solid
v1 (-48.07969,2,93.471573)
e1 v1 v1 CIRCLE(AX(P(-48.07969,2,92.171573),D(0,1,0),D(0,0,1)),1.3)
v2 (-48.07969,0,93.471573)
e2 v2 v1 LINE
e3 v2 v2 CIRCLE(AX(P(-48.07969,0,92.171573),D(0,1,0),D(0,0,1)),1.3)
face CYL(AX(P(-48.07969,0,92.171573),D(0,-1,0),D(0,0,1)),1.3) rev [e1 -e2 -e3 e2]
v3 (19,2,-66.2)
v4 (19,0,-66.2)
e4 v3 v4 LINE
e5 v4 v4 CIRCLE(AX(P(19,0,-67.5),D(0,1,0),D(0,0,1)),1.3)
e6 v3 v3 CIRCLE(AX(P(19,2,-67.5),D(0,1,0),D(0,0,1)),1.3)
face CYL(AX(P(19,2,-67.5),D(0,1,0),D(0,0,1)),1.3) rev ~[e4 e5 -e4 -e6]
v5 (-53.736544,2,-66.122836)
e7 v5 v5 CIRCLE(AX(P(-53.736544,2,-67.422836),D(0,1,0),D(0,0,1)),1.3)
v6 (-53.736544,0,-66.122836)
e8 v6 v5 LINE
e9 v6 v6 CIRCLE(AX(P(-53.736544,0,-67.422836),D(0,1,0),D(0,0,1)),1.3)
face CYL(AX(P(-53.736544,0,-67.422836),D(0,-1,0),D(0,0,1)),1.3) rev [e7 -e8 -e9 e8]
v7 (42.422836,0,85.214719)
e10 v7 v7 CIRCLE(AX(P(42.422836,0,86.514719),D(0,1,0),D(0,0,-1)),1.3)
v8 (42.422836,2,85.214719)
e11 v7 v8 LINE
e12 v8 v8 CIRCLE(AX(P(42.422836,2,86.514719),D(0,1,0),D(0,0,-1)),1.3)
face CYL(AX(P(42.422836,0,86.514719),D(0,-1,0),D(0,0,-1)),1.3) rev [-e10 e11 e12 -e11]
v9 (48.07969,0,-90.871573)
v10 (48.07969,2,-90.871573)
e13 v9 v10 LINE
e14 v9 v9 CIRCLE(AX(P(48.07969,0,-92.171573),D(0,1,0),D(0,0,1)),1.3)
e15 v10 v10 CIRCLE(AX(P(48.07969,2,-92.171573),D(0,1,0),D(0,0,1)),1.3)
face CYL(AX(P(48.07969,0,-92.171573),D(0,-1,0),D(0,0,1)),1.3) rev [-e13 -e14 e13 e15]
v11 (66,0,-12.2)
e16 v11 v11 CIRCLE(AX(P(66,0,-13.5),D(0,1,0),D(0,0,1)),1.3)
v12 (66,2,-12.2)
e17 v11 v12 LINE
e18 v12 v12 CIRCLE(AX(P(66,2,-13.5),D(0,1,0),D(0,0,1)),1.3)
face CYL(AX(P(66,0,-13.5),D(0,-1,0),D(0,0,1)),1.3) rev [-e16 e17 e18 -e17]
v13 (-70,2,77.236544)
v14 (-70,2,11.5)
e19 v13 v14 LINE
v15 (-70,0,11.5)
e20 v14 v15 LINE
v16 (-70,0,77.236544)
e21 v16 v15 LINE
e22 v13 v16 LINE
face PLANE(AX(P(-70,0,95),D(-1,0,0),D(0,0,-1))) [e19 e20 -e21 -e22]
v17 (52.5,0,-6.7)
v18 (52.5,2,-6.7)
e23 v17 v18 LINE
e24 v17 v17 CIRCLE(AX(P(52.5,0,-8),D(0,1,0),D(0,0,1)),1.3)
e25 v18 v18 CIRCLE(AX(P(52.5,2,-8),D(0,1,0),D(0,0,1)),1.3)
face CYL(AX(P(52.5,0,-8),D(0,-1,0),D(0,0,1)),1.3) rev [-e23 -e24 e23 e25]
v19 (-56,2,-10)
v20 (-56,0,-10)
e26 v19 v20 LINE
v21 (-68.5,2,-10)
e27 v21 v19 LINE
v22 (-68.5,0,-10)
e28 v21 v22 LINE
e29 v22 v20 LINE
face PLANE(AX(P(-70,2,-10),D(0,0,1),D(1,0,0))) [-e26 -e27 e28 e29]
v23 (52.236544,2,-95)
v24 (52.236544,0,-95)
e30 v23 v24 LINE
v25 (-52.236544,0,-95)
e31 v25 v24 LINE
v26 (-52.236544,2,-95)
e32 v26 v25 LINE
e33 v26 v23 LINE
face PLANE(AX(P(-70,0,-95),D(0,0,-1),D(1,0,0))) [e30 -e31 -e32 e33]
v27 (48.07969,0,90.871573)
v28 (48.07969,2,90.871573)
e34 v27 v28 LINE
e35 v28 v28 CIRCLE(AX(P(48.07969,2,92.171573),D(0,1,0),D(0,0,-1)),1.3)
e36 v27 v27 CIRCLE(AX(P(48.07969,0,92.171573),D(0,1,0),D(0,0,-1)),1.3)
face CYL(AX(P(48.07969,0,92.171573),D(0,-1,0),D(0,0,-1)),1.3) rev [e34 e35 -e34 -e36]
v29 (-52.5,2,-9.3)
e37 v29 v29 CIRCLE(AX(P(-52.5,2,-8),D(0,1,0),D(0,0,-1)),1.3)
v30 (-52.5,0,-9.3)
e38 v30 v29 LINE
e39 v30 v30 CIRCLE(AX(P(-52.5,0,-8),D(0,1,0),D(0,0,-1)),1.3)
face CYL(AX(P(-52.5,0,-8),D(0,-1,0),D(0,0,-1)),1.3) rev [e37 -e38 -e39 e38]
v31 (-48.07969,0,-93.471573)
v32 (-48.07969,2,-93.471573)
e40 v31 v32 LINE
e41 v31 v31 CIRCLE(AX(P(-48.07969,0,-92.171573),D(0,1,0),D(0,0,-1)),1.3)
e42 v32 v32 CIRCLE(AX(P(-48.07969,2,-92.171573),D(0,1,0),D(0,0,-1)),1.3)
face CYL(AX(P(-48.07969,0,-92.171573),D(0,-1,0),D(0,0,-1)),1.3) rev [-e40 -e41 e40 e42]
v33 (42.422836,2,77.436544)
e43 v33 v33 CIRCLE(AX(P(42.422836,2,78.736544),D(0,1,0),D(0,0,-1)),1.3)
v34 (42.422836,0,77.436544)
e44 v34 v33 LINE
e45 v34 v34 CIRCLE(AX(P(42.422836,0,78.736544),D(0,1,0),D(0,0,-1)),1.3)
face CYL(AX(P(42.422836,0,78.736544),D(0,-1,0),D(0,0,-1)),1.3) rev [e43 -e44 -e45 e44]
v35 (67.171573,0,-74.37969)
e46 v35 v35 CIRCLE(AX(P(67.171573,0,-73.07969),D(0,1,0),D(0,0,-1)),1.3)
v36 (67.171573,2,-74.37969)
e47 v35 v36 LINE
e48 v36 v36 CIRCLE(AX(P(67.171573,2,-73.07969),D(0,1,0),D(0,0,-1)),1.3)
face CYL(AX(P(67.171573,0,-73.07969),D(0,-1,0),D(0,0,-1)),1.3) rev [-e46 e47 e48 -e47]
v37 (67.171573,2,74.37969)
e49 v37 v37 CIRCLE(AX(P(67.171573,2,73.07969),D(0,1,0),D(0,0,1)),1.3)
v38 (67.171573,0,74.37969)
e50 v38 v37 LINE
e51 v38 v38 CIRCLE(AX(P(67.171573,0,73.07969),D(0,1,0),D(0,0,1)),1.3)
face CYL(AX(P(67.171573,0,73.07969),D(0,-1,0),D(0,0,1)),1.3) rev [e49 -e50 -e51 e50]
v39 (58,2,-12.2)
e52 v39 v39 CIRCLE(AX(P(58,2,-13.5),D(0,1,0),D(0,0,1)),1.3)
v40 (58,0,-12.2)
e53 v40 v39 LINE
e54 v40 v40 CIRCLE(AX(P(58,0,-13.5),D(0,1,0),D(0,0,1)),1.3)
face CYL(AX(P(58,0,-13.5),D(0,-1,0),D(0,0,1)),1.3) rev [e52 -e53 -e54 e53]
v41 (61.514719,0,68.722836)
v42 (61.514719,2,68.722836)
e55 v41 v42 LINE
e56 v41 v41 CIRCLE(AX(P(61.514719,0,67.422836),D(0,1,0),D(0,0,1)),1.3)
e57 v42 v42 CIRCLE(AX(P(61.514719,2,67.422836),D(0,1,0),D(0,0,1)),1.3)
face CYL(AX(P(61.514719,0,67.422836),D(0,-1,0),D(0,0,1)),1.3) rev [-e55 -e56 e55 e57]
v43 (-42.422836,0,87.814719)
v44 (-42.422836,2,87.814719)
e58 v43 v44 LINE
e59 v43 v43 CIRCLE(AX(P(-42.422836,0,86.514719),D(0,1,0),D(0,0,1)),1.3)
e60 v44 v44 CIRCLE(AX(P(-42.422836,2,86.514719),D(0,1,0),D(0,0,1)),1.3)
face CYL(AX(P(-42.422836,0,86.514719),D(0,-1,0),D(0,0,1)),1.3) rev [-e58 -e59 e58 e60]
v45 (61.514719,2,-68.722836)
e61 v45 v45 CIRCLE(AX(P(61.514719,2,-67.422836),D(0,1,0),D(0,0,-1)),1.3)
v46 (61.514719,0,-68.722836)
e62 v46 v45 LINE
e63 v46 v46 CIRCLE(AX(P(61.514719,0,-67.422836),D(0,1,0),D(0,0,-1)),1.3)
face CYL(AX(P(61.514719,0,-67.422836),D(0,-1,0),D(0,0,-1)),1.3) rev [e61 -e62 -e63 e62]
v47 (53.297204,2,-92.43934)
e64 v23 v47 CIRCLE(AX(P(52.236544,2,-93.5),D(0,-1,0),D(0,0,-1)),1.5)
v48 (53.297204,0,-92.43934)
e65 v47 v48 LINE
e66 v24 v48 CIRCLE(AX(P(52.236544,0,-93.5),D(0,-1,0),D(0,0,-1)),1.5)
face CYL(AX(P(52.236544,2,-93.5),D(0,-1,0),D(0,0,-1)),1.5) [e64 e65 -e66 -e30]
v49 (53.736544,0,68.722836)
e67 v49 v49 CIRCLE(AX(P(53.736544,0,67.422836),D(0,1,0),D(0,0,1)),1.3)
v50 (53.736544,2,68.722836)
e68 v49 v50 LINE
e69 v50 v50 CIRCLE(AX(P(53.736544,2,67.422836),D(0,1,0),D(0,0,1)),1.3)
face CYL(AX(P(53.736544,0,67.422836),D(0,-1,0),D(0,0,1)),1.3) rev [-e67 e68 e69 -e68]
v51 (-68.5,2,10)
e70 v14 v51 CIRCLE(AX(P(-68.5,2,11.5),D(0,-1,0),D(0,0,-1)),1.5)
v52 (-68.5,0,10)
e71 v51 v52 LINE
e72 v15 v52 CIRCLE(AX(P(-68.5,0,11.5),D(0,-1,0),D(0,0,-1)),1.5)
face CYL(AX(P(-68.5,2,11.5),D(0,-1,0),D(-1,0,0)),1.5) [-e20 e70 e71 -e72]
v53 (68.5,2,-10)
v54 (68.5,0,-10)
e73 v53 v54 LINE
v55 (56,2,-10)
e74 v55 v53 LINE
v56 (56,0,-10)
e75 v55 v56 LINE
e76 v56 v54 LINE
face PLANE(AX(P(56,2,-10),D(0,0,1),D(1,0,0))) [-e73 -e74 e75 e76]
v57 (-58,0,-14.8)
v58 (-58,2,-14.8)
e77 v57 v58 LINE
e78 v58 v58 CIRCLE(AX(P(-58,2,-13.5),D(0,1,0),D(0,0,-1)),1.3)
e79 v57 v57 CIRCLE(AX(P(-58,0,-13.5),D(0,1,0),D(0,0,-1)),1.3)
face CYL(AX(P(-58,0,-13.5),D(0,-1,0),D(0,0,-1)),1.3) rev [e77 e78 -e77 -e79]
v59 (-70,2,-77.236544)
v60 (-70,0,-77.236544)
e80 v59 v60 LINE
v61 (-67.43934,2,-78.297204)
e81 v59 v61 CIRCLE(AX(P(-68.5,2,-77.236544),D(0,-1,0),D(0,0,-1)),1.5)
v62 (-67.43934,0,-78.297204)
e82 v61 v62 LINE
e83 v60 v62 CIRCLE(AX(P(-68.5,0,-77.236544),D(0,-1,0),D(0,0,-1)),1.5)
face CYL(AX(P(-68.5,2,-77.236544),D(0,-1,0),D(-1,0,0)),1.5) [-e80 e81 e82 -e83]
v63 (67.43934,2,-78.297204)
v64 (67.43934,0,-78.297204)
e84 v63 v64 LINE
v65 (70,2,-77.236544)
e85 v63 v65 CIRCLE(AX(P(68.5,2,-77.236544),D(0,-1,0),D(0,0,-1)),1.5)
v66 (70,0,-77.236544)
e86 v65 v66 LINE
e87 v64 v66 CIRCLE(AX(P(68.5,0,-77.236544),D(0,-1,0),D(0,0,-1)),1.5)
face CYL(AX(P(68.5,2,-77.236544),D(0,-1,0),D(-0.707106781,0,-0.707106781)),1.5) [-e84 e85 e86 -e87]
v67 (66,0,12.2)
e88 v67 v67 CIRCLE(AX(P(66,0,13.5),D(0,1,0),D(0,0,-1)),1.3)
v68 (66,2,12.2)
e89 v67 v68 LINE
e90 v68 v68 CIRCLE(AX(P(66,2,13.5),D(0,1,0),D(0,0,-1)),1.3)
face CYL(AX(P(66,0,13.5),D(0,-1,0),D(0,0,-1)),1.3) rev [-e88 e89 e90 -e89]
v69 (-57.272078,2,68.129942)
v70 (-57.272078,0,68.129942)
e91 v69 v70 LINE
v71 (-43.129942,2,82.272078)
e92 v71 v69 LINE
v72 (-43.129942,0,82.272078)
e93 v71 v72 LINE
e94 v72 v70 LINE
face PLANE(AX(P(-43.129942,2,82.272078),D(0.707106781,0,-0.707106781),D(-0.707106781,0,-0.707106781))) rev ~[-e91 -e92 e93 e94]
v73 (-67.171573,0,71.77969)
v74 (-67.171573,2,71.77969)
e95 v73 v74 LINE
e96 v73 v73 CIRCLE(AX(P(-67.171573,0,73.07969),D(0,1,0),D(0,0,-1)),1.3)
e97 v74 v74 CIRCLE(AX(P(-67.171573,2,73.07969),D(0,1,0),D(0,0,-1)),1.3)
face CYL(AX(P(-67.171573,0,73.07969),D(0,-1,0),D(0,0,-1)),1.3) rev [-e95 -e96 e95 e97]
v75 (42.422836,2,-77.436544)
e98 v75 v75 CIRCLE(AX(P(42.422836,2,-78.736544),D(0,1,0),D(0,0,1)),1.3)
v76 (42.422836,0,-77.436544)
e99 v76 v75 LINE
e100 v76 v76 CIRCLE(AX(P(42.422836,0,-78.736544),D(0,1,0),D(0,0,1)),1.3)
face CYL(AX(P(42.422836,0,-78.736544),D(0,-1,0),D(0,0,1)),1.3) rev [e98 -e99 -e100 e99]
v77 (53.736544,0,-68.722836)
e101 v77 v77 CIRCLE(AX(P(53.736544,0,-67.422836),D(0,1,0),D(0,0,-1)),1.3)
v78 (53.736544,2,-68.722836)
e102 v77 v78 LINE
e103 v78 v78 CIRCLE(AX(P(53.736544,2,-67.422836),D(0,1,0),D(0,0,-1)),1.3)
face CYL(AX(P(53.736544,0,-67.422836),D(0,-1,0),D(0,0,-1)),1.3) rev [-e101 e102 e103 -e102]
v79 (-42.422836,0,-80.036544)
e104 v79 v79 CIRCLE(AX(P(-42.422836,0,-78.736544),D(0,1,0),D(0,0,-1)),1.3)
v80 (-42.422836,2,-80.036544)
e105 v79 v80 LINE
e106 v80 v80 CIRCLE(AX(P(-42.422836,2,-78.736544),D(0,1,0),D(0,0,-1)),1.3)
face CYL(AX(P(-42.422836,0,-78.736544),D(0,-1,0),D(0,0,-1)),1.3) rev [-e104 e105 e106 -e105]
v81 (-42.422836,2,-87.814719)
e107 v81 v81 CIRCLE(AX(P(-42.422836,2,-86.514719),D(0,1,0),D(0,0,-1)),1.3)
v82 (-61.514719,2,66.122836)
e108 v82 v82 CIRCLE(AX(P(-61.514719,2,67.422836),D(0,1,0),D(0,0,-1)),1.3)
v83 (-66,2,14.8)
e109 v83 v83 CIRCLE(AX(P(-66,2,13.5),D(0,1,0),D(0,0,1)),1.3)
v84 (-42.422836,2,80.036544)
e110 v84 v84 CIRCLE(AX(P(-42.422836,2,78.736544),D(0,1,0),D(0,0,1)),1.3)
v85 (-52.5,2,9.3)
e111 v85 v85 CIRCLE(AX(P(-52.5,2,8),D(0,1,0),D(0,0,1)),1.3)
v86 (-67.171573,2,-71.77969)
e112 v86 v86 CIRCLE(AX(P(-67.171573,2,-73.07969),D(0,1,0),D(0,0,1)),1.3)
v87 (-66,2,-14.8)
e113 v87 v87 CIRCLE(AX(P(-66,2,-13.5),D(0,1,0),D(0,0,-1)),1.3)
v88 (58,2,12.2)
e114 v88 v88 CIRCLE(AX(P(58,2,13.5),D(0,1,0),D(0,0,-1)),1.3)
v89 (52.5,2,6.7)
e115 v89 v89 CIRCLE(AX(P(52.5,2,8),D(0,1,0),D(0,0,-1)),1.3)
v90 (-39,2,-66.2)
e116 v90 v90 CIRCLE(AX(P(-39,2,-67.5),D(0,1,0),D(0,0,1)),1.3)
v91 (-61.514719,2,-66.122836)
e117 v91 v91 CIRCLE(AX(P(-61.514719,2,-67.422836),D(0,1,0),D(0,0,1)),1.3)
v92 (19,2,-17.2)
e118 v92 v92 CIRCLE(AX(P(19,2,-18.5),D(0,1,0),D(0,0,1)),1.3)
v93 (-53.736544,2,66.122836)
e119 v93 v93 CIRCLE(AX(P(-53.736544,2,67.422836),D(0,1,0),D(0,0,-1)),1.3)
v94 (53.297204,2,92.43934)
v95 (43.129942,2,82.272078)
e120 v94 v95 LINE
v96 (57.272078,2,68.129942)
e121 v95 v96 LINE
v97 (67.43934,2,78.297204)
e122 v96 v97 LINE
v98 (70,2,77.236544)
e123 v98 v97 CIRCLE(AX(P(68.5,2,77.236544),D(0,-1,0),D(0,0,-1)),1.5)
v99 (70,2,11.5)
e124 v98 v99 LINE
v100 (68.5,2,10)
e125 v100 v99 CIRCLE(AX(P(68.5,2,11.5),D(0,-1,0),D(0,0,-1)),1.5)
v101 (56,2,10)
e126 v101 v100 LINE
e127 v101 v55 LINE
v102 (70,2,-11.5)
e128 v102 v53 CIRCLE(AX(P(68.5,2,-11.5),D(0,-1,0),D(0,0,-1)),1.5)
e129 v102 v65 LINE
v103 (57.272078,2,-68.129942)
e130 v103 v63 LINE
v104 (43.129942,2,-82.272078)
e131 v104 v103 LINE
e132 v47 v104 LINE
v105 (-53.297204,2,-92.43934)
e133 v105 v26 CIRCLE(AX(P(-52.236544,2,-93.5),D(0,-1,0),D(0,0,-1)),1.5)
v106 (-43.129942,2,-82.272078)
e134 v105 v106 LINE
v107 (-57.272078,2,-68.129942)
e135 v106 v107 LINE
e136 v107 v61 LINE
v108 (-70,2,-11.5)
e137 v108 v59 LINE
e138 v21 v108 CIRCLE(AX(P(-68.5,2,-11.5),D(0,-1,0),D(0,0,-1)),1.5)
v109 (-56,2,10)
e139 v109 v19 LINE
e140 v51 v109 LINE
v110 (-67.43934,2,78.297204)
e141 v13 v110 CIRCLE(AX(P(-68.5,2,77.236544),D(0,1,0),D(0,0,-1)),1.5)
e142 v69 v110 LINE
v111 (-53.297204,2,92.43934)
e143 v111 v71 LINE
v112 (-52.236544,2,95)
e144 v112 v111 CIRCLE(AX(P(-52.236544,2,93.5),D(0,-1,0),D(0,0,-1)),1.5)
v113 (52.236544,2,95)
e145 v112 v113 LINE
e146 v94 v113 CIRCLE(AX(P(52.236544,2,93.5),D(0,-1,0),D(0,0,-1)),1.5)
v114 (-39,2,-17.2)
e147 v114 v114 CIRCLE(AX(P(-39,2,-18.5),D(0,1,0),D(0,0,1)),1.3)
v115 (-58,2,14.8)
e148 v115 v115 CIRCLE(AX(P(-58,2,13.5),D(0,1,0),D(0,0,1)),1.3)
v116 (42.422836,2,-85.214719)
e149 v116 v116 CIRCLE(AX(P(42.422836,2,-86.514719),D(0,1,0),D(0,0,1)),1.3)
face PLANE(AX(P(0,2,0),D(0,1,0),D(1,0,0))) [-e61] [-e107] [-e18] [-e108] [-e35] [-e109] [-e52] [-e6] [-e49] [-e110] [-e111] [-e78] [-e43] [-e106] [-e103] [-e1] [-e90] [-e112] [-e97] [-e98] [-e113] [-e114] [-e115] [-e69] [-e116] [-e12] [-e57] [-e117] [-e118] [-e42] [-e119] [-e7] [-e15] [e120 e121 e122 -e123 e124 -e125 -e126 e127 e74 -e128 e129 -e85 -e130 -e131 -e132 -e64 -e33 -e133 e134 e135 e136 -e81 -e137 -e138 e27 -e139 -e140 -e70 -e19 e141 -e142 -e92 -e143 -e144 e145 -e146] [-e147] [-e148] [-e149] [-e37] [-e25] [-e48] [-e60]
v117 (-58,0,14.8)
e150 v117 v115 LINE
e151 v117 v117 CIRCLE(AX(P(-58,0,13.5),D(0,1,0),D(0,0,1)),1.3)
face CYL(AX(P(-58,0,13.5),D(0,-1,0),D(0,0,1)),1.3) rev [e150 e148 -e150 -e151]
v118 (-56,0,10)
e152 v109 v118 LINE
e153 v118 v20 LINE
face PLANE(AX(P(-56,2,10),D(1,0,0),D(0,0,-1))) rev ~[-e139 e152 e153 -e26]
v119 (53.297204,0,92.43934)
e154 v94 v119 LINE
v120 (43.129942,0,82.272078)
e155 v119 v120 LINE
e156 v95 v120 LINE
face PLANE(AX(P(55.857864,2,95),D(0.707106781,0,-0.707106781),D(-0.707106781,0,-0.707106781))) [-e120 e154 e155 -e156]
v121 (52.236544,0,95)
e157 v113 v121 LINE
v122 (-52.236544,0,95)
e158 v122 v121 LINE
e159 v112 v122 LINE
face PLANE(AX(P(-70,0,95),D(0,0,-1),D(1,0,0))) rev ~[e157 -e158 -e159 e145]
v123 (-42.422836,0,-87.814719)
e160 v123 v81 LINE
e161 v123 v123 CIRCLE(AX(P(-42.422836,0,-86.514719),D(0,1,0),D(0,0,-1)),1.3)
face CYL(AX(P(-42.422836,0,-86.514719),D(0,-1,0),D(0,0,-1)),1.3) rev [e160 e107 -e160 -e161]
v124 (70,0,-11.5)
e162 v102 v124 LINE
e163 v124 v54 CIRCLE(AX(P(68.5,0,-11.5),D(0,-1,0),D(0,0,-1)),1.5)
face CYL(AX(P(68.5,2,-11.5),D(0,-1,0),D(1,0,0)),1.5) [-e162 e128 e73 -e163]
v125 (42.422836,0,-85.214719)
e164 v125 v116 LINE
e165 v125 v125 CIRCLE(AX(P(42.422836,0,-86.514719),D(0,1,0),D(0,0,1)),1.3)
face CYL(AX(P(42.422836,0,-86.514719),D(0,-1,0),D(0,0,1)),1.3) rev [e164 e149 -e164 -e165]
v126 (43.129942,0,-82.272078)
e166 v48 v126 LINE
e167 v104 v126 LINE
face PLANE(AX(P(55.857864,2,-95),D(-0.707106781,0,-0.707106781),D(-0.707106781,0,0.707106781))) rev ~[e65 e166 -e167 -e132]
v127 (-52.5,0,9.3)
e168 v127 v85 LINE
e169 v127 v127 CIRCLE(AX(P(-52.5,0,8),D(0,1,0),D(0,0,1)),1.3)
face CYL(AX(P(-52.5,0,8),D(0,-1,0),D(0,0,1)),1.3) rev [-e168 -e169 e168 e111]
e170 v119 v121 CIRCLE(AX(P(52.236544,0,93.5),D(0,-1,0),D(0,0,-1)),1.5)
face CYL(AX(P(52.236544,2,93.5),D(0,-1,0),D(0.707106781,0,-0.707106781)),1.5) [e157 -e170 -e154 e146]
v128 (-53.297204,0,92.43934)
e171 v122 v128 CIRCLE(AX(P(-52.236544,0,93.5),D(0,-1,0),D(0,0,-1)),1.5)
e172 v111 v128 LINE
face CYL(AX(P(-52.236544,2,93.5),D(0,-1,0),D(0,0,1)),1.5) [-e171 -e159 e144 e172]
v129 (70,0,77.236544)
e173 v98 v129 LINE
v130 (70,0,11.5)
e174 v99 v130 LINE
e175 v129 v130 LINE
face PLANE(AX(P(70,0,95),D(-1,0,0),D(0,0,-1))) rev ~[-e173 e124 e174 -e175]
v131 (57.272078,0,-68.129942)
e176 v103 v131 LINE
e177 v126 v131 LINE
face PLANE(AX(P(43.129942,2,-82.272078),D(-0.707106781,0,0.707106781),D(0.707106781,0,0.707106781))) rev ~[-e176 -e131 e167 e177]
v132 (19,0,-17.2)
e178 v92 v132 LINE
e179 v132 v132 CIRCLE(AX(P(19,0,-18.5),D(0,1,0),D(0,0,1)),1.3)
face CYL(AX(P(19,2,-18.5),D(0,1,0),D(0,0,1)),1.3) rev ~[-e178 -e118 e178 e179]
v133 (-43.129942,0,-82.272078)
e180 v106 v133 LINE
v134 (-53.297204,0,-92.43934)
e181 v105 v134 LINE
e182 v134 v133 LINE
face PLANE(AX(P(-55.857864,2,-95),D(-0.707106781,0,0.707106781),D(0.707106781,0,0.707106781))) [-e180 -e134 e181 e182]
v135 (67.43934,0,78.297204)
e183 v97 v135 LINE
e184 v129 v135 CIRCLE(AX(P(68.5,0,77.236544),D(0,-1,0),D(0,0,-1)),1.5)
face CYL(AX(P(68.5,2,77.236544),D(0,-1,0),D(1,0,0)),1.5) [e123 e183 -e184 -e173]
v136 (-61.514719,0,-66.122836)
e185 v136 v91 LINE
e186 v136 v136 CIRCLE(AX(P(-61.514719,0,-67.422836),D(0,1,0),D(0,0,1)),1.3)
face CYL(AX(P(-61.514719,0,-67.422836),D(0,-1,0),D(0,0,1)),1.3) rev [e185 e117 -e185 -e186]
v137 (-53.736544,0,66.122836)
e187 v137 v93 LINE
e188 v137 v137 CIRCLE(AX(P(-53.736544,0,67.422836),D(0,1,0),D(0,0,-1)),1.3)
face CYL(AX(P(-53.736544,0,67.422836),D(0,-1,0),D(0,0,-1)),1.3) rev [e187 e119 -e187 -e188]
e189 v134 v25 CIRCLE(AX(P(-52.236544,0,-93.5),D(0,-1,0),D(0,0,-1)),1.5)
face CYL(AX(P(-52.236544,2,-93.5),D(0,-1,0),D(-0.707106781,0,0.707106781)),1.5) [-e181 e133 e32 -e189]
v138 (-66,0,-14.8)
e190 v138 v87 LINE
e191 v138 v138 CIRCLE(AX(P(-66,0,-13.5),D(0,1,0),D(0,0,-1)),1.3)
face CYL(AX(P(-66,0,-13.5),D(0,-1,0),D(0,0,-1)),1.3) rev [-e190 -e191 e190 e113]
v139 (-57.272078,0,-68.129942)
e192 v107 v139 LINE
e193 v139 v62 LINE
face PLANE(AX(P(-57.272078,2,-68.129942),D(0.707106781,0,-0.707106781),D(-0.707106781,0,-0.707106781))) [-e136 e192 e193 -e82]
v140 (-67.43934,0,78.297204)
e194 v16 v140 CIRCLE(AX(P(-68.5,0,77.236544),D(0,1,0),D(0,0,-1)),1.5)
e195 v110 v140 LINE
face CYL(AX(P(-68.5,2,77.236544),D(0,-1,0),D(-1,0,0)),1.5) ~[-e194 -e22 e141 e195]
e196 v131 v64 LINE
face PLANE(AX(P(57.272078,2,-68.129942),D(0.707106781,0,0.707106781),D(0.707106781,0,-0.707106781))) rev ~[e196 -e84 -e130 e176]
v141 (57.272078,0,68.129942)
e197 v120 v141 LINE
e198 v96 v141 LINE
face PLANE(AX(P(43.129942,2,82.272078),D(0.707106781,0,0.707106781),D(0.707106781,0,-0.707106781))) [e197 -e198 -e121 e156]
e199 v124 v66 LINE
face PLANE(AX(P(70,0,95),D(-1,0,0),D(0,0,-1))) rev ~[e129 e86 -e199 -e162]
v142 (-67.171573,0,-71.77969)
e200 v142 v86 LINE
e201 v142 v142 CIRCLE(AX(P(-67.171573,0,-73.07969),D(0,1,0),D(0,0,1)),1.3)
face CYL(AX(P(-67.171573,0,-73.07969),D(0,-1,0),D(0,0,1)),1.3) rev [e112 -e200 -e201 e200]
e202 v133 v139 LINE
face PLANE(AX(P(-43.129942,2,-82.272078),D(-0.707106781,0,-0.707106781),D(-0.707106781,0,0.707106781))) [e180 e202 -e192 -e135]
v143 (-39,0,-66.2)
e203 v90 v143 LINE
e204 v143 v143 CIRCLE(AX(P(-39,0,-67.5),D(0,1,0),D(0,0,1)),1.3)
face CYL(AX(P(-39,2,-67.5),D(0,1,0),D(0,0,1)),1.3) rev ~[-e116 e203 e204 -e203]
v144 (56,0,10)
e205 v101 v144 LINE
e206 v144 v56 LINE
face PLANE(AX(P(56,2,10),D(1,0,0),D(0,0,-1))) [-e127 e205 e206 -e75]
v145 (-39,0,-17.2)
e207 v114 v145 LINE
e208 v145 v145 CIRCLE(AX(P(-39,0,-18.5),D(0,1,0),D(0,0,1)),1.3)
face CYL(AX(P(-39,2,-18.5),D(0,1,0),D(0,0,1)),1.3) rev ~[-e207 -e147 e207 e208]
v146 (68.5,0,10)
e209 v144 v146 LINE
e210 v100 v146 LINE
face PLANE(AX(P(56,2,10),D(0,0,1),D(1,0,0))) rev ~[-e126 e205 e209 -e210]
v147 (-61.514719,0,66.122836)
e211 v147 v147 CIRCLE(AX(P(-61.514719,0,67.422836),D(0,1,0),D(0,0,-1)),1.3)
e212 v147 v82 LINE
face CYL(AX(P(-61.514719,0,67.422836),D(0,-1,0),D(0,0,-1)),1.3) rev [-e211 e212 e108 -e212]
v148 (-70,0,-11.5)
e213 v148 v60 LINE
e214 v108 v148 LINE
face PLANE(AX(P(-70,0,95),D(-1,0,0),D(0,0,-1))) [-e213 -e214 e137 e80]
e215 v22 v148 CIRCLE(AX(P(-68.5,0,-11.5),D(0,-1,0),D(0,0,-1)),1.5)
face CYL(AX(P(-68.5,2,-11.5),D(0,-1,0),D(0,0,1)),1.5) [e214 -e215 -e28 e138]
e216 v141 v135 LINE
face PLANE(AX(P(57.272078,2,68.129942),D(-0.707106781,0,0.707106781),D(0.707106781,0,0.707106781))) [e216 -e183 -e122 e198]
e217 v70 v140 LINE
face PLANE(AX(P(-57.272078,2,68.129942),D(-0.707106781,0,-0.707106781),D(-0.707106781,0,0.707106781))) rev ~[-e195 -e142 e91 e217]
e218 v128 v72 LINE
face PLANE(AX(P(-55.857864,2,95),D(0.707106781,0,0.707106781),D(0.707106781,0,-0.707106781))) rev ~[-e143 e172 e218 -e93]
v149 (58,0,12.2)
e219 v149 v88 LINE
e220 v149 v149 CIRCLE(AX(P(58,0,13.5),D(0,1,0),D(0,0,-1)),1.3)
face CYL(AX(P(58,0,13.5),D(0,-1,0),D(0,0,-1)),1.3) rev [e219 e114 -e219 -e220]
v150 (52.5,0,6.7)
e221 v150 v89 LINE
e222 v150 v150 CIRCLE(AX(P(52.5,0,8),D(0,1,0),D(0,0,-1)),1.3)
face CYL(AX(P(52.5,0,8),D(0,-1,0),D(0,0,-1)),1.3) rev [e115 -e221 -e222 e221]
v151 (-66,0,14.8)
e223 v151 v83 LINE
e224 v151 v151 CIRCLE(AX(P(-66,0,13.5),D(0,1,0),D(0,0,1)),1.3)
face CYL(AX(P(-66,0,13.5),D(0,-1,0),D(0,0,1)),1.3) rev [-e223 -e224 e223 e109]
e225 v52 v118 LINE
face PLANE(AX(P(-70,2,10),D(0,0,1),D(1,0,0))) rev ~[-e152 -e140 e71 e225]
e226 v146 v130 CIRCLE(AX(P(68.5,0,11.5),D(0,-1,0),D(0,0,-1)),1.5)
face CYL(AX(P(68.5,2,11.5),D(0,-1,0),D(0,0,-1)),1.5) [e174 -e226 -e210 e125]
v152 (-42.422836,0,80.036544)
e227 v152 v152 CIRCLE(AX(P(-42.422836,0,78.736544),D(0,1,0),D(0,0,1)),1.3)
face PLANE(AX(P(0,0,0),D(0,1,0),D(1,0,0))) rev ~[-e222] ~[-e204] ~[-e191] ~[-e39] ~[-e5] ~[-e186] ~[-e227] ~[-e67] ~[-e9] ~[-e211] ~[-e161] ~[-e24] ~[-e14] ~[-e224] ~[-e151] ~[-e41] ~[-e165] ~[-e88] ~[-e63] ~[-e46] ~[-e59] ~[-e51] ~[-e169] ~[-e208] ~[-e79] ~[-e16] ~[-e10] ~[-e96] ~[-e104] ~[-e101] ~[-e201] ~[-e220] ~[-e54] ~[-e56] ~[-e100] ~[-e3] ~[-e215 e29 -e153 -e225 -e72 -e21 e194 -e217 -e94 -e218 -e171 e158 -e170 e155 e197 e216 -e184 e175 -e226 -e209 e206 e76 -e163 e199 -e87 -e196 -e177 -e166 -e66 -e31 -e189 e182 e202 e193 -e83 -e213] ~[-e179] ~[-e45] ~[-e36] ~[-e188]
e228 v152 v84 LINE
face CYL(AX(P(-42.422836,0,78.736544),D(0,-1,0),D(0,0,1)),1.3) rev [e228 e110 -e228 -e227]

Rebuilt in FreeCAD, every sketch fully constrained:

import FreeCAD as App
import Part
import Sketcher
from FreeCAD import Vector


def edges_at(feature, points):
    """Names of the edges that pass closest to the given points."""
    edges = feature.Shape.Edges
    near = lambda p: min(range(len(edges)), key=lambda i: edges[i].distToShape(Part.Vertex(*p))[0])
    return sorted({f"Edge{near(p) + 1}" for p in points})

doc = App.newDocument("Part")
body = doc.addObject("PartDesign::Body", "Body")

# Sketch on XZ plane
sketch1 = body.newObject("Sketcher::SketchObject", "Sketch")
sketch1.AttachmentSupport = (doc.getObject("XZ_Plane"), [""])
sketch1.MapMode = "FlatFace"
sketch1.addGeometry(Part.LineSegment(Vector(-70, -95, 0), Vector(-70, 95, 0)), False)
sketch1.addGeometry(Part.LineSegment(Vector(-70, 95, 0), Vector(70, 95, 0)), False)
sketch1.addGeometry(Part.LineSegment(Vector(70, 95, 0), Vector(70, -95, 0)), False)
sketch1.addGeometry(Part.LineSegment(Vector(70, -95, 0), Vector(-70, -95, 0)), False)
sketch1.addGeometry(Part.Circle(Vector(-67.2, 73.1, 0), Vector(0, 0, 1), 1.3), False)
sketch1.addGeometry(Part.Circle(Vector(-48.1, 92.2, 0), Vector(0, 0, 1), 1.3), False)
sketch1.addGeometry(Part.Circle(Vector(-42.4, 86.5, 0), Vector(0, 0, 1), 1.3), False)
sketch1.addGeometry(Part.Circle(Vector(-42.4, 78.7, 0), Vector(0, 0, 1), 1.3), False)
sketch1.addGeometry(Part.Circle(Vector(-61.5, 67.4, 0), Vector(0, 0, 1), 1.3), False)
sketch1.addGeometry(Part.Circle(Vector(-53.7, 67.4, 0), Vector(0, 0, 1), 1.3), False)
sketch1.addGeometry(Part.Circle(Vector(-66, 13.5, 0), Vector(0, 0, 1), 1.3), False)
sketch1.addGeometry(Part.Circle(Vector(-58, 13.5, 0), Vector(0, 0, 1), 1.3), False)
sketch1.addGeometry(Part.Circle(Vector(-52.5, 8, 0), Vector(0, 0, 1), 1.3), False)
sketch1.addGeometry(Part.Circle(Vector(42.4, 86.5, 0), Vector(0, 0, 1), 1.3), False)
sketch1.addGeometry(Part.Circle(Vector(48.1, 92.2, 0), Vector(0, 0, 1), 1.3), False)
sketch1.addGeometry(Part.Circle(Vector(42.4, 78.7, 0), Vector(0, 0, 1), 1.3), False)
sketch1.addGeometry(Part.Circle(Vector(67.2, 73.1, 0), Vector(0, 0, 1), 1.3), False)
sketch1.addGeometry(Part.Circle(Vector(53.7, 67.4, 0), Vector(0, 0, 1), 1.3), False)
sketch1.addGeometry(Part.Circle(Vector(61.5, 67.4, 0), Vector(0, 0, 1), 1.3), False)
sketch1.addGeometry(Part.Circle(Vector(58, 13.5, 0), Vector(0, 0, 1), 1.3), False)
sketch1.addGeometry(Part.Circle(Vector(66, 13.5, 0), Vector(0, 0, 1), 1.3), False)
sketch1.addGeometry(Part.Circle(Vector(52.5, 8, 0), Vector(0, 0, 1), 1.3), False)
sketch1.addGeometry(Part.Circle(Vector(-52.5, -8, 0), Vector(0, 0, 1), 1.3), False)
sketch1.addGeometry(Part.Circle(Vector(-66, -13.5, 0), Vector(0, 0, 1), 1.3), False)
sketch1.addGeometry(Part.Circle(Vector(-58, -13.5, 0), Vector(0, 0, 1), 1.3), False)
sketch1.addGeometry(Part.Circle(Vector(-61.5, -67.4, 0), Vector(0, 0, 1), 1.3), False)
sketch1.addGeometry(Part.Circle(Vector(-53.7, -67.4, 0), Vector(0, 0, 1), 1.3), False)
sketch1.addGeometry(Part.Circle(Vector(-67.2, -73.1, 0), Vector(0, 0, 1), 1.3), False)
sketch1.addGeometry(Part.Circle(Vector(-42.4, -78.7, 0), Vector(0, 0, 1), 1.3), False)
sketch1.addGeometry(Part.Circle(Vector(-48.1, -92.2, 0), Vector(0, 0, 1), 1.3), False)
sketch1.addGeometry(Part.Circle(Vector(-42.4, -86.5, 0), Vector(0, 0, 1), 1.3), False)
sketch1.addGeometry(Part.Circle(Vector(52.5, -8, 0), Vector(0, 0, 1), 1.3), False)
sketch1.addGeometry(Part.Circle(Vector(58, -13.5, 0), Vector(0, 0, 1), 1.3), False)
sketch1.addGeometry(Part.Circle(Vector(66, -13.5, 0), Vector(0, 0, 1), 1.3), False)
sketch1.addGeometry(Part.Circle(Vector(53.7, -67.4, 0), Vector(0, 0, 1), 1.3), False)
sketch1.addGeometry(Part.Circle(Vector(61.5, -67.4, 0), Vector(0, 0, 1), 1.3), False)
sketch1.addGeometry(Part.Circle(Vector(42.4, -78.7, 0), Vector(0, 0, 1), 1.3), False)
sketch1.addGeometry(Part.Circle(Vector(42.4, -86.5, 0), Vector(0, 0, 1), 1.3), False)
sketch1.addGeometry(Part.Circle(Vector(48.1, -92.2, 0), Vector(0, 0, 1), 1.3), False)
sketch1.addGeometry(Part.Circle(Vector(67.2, -73.1, 0), Vector(0, 0, 1), 1.3), False)
sketch1.addConstraint(Sketcher.Constraint("Coincident", 0, 2, 1, 1))
sketch1.addConstraint(Sketcher.Constraint("Coincident", 1, 2, 2, 1))
sketch1.addConstraint(Sketcher.Constraint("Coincident", 2, 2, 3, 1))
sketch1.addConstraint(Sketcher.Constraint("Coincident", 3, 2, 0, 1))
sketch1.addConstraint(Sketcher.Constraint("Vertical", 0))
sketch1.addConstraint(Sketcher.Constraint("Horizontal", 1))
sketch1.addConstraint(Sketcher.Constraint("Vertical", 2))
sketch1.addConstraint(Sketcher.Constraint("Horizontal", 3))
sketch1.addConstraint(Sketcher.Constraint("Equal", 4, 5))
sketch1.addConstraint(Sketcher.Constraint("Equal", 5, 6))
sketch1.addConstraint(Sketcher.Constraint("Equal", 6, 7))
sketch1.addConstraint(Sketcher.Constraint("Equal", 7, 8))
sketch1.addConstraint(Sketcher.Constraint("Equal", 8, 9))
sketch1.addConstraint(Sketcher.Constraint("Equal", 9, 10))
sketch1.addConstraint(Sketcher.Constraint("Equal", 10, 11))
sketch1.addConstraint(Sketcher.Constraint("Equal", 11, 12))
sketch1.addConstraint(Sketcher.Constraint("Equal", 12, 13))
sketch1.addConstraint(Sketcher.Constraint("Equal", 13, 14))
sketch1.addConstraint(Sketcher.Constraint("Equal", 14, 15))
sketch1.addConstraint(Sketcher.Constraint("Equal", 15, 16))
sketch1.addConstraint(Sketcher.Constraint("Equal", 16, 17))
sketch1.addConstraint(Sketcher.Constraint("Equal", 17, 18))
sketch1.addConstraint(Sketcher.Constraint("Equal", 18, 19))
sketch1.addConstraint(Sketcher.Constraint("Equal", 19, 20))
sketch1.addConstraint(Sketcher.Constraint("Equal", 20, 21))
sketch1.addConstraint(Sketcher.Constraint("Equal", 21, 22))
sketch1.addConstraint(Sketcher.Constraint("Equal", 22, 23))
sketch1.addConstraint(Sketcher.Constraint("Equal", 23, 24))
sketch1.addConstraint(Sketcher.Constraint("Equal", 24, 25))
sketch1.addConstraint(Sketcher.Constraint("Equal", 25, 26))
sketch1.addConstraint(Sketcher.Constraint("Equal", 26, 27))
sketch1.addConstraint(Sketcher.Constraint("Equal", 27, 28))
sketch1.addConstraint(Sketcher.Constraint("Equal", 28, 29))
sketch1.addConstraint(Sketcher.Constraint("Equal", 29, 30))
sketch1.addConstraint(Sketcher.Constraint("Equal", 30, 31))
sketch1.addConstraint(Sketcher.Constraint("Equal", 31, 32))
sketch1.addConstraint(Sketcher.Constraint("Equal", 32, 33))
sketch1.addConstraint(Sketcher.Constraint("Equal", 33, 34))
sketch1.addConstraint(Sketcher.Constraint("Equal", 34, 35))
sketch1.addConstraint(Sketcher.Constraint("Equal", 35, 36))
sketch1.addConstraint(Sketcher.Constraint("Equal", 36, 37))
sketch1.addConstraint(Sketcher.Constraint("Equal", 37, 38))
sketch1.addConstraint(Sketcher.Constraint("Equal", 38, 39))
sketch1.addConstraint(Sketcher.Constraint("Symmetric", 21, 3, 22, 3, -1, 1))
sketch1.addConstraint(Sketcher.Constraint("Symmetric", 20, 3, 23, 3, -1, 1))
sketch1.addConstraint(Sketcher.Constraint("Symmetric", 19, 3, 24, 3, -1, 1))
sketch1.addConstraint(Sketcher.Constraint("Symmetric", 18, 3, 25, 3, -1, 1))
sketch1.addConstraint(Sketcher.Constraint("Symmetric", 17, 3, 26, 3, -1, 1))
sketch1.addConstraint(Sketcher.Constraint("Symmetric", 16, 3, 27, 3, -1, 1))
sketch1.addConstraint(Sketcher.Constraint("Symmetric", 15, 3, 28, 3, -1, 1))
sketch1.addConstraint(Sketcher.Constraint("Symmetric", 14, 3, 29, 3, -1, 1))
sketch1.addConstraint(Sketcher.Constraint("Symmetric", 13, 3, 30, 3, -1, 1))
sketch1.addConstraint(Sketcher.Constraint("Symmetric", 12, 3, 31, 3, -1, 1))
sketch1.addConstraint(Sketcher.Constraint("Symmetric", 11, 3, 32, 3, -1, 1))
sketch1.addConstraint(Sketcher.Constraint("Symmetric", 10, 3, 33, 3, -1, 1))
sketch1.addConstraint(Sketcher.Constraint("Symmetric", 9, 3, 34, 3, -1, 1))
sketch1.addConstraint(Sketcher.Constraint("Symmetric", 8, 3, 35, 3, -1, 1))
sketch1.addConstraint(Sketcher.Constraint("Symmetric", 7, 3, 36, 3, -1, 1))
sketch1.addConstraint(Sketcher.Constraint("Symmetric", 6, 3, 37, 3, -1, 1))
sketch1.addConstraint(Sketcher.Constraint("Symmetric", 5, 3, 38, 3, -1, 1))
sketch1.addConstraint(Sketcher.Constraint("Symmetric", 4, 3, 39, 3, -1, 1))
sketch1.addConstraint(Sketcher.Constraint("Symmetric", 0, 2, 2, 2, -1, 1))
sketch1.addConstraint(Sketcher.Constraint("Symmetric", 6, 3, 13, 3, -2))
sketch1.addConstraint(Sketcher.Constraint("Symmetric", 5, 3, 14, 3, -2))
sketch1.addConstraint(Sketcher.Constraint("Symmetric", 7, 3, 15, 3, -2))
sketch1.addConstraint(Sketcher.Constraint("Symmetric", 4, 3, 16, 3, -2))
sketch1.addConstraint(Sketcher.Constraint("Symmetric", 9, 3, 17, 3, -2))
sketch1.addConstraint(Sketcher.Constraint("Symmetric", 8, 3, 18, 3, -2))
sketch1.addConstraint(Sketcher.Constraint("Symmetric", 11, 3, 19, 3, -2))
sketch1.addConstraint(Sketcher.Constraint("Symmetric", 10, 3, 20, 3, -2))
sketch1.addConstraint(Sketcher.Constraint("Symmetric", 12, 3, 21, 3, -2))
sketch1.addConstraint(Sketcher.Constraint("Horizontal", 8, 3, 9, 3))
sketch1.addConstraint(Sketcher.Constraint("Horizontal", 10, 3, 11, 3))
sketch1.addConstraint(Sketcher.Constraint("Vertical", 6, 3, 7, 3))
sketch1.addConstraint(Sketcher.Constraint("Diameter", 4, 2.6))
sketch1.addConstraint(Sketcher.Constraint("DistanceX", 1, 1, 1, 2, 140.0))
sketch1.addConstraint(Sketcher.Constraint("DistanceY", 0, 1, 0, 2, 190.0))
sketch1.addConstraint(Sketcher.Constraint("DistanceX", 10, 3, -1, 1, 66.0))
sketch1.addConstraint(Sketcher.Constraint("DistanceX", 11, 3, -1, 1, 58.0))
sketch1.addConstraint(Sketcher.Constraint("DistanceY", -1, 1, 12, 3, 8.0))
sketch1.addConstraint(Sketcher.Constraint("DistanceY", 23, 3, 10, 3, 27.0))
sketch1.addConstraint(Sketcher.Constraint("DistanceX", 12, 3, -1, 1, 52.5))
sketch1.addConstraint(Sketcher.Constraint("DistanceY", -1, 1, 4, 3, 73.07969))
sketch1.addConstraint(Sketcher.Constraint("DistanceX", 5, 3, -1, 1, 48.07969))
sketch1.addConstraint(Sketcher.Constraint("DistanceY", -1, 1, 6, 3, 86.514719))
sketch1.addConstraint(Sketcher.Constraint("DistanceX", 8, 3, -1, 1, 61.514719))
sketch1.addConstraint(Sketcher.Constraint("DistanceY", 7, 3, 5, 3, 13.435029))
sketch1.addConstraint(Sketcher.Constraint("DistanceY", 8, 3, 7, 3, 11.313708))
sketch1.addConstraint(Sketcher.Constraint("DistanceX", 4, 3, 9, 3, 13.435029))
sketch1.addConstraint(Sketcher.Constraint("DistanceX", 9, 3, 7, 3, 11.313708))
sketch1.addConstraint(Sketcher.Constraint("DistanceX", 6, 3, 13, 3, 84.845671))
sketch1.addConstraint(Sketcher.Constraint("DistanceY", -1, 1, 5, 3, 92.171573))
pad1 = body.newObject("PartDesign::Pad", "Pad")
pad1.Profile = sketch1
pad1.Length = 2
pad1.Reversed = True

# Sketch on XZ plane
sketch2 = body.newObject("Sketcher::SketchObject", "Sketch001")
sketch2.AttachmentSupport = (doc.getObject("XZ_Plane"), [""])
sketch2.MapMode = "FlatFace"
sketch2.AttachmentOffset = App.Placement(Vector(0, 0, -2), App.Rotation())
sketch2.addGeometry(Part.LineSegment(Vector(56, -10, 0), Vector(56, 10, 0)), False)
sketch2.addGeometry(Part.LineSegment(Vector(56, 10, 0), Vector(70, 10, 0)), False)
sketch2.addGeometry(Part.LineSegment(Vector(70, 10, 0), Vector(70, -10, 0)), False)
sketch2.addGeometry(Part.LineSegment(Vector(70, -10, 0), Vector(56, -10, 0)), False)
sketch2.addGeometry(Part.LineSegment(Vector(56, -95, 0), Vector(43, -82, 0)), False)
sketch2.addGeometry(Part.LineSegment(Vector(43, -82, 0), Vector(57, -68, 0)), False)
sketch2.addGeometry(Part.LineSegment(Vector(57, -68, 0), Vector(70, -81, 0)), False)
sketch2.addGeometry(Part.LineSegment(Vector(70, -81, 0), Vector(70, -95, 0)), False)
sketch2.addGeometry(Part.LineSegment(Vector(70, -95, 0), Vector(56, -95, 0)), False)
sketch2.addGeometry(Part.LineSegment(Vector(70, 95, 0), Vector(70, 81, 0)), False)
sketch2.addGeometry(Part.LineSegment(Vector(70, 81, 0), Vector(57, 68, 0)), False)
sketch2.addGeometry(Part.LineSegment(Vector(57, 68, 0), Vector(43, 82, 0)), False)
sketch2.addGeometry(Part.LineSegment(Vector(43, 82, 0), Vector(56, 95, 0)), False)
sketch2.addGeometry(Part.LineSegment(Vector(56, 95, 0), Vector(70, 95, 0)), False)
sketch2.addGeometry(Part.LineSegment(Vector(-70, -95, 0), Vector(-70, -81, 0)), False)
sketch2.addGeometry(Part.LineSegment(Vector(-70, -81, 0), Vector(-57, -68, 0)), False)
sketch2.addGeometry(Part.LineSegment(Vector(-57, -68, 0), Vector(-43, -82, 0)), False)
sketch2.addGeometry(Part.LineSegment(Vector(-43, -82, 0), Vector(-56, -95, 0)), False)
sketch2.addGeometry(Part.LineSegment(Vector(-56, -95, 0), Vector(-70, -95, 0)), False)
sketch2.addGeometry(Part.LineSegment(Vector(-70, -10, 0), Vector(-70, 10, 0)), False)
sketch2.addGeometry(Part.LineSegment(Vector(-70, 10, 0), Vector(-56, 10, 0)), False)
sketch2.addGeometry(Part.LineSegment(Vector(-56, 10, 0), Vector(-56, -10, 0)), False)
sketch2.addGeometry(Part.LineSegment(Vector(-56, -10, 0), Vector(-70, -10, 0)), False)
sketch2.addGeometry(Part.LineSegment(Vector(-57, 68, 0), Vector(-70, 81, 0)), False)
sketch2.addGeometry(Part.LineSegment(Vector(-70, 81, 0), Vector(-70, 95, 0)), False)
sketch2.addGeometry(Part.LineSegment(Vector(-70, 95, 0), Vector(-56, 95, 0)), False)
sketch2.addGeometry(Part.LineSegment(Vector(-56, 95, 0), Vector(-43, 82, 0)), False)
sketch2.addGeometry(Part.LineSegment(Vector(-43, 82, 0), Vector(-57, 68, 0)), False)
sketch2.addConstraint(Sketcher.Constraint("Coincident", 0, 2, 1, 1))
sketch2.addConstraint(Sketcher.Constraint("Coincident", 1, 2, 2, 1))
sketch2.addConstraint(Sketcher.Constraint("Coincident", 2, 2, 3, 1))
sketch2.addConstraint(Sketcher.Constraint("Coincident", 3, 2, 0, 1))
sketch2.addConstraint(Sketcher.Constraint("Coincident", 4, 2, 5, 1))
sketch2.addConstraint(Sketcher.Constraint("Coincident", 5, 2, 6, 1))
sketch2.addConstraint(Sketcher.Constraint("Coincident", 6, 2, 7, 1))
sketch2.addConstraint(Sketcher.Constraint("Coincident", 7, 2, 8, 1))
sketch2.addConstraint(Sketcher.Constraint("Coincident", 8, 2, 4, 1))
sketch2.addConstraint(Sketcher.Constraint("Coincident", 9, 2, 10, 1))
sketch2.addConstraint(Sketcher.Constraint("Coincident", 10, 2, 11, 1))
sketch2.addConstraint(Sketcher.Constraint("Coincident", 11, 2, 12, 1))
sketch2.addConstraint(Sketcher.Constraint("Coincident", 12, 2, 13, 1))
sketch2.addConstraint(Sketcher.Constraint("Coincident", 13, 2, 9, 1))
sketch2.addConstraint(Sketcher.Constraint("Coincident", 14, 2, 15, 1))
sketch2.addConstraint(Sketcher.Constraint("Coincident", 15, 2, 16, 1))
sketch2.addConstraint(Sketcher.Constraint("Coincident", 16, 2, 17, 1))
sketch2.addConstraint(Sketcher.Constraint("Coincident", 17, 2, 18, 1))
sketch2.addConstraint(Sketcher.Constraint("Coincident", 18, 2, 14, 1))
sketch2.addConstraint(Sketcher.Constraint("Coincident", 19, 2, 20, 1))
sketch2.addConstraint(Sketcher.Constraint("Coincident", 20, 2, 21, 1))
sketch2.addConstraint(Sketcher.Constraint("Coincident", 21, 2, 22, 1))
sketch2.addConstraint(Sketcher.Constraint("Coincident", 22, 2, 19, 1))
sketch2.addConstraint(Sketcher.Constraint("Coincident", 23, 2, 24, 1))
sketch2.addConstraint(Sketcher.Constraint("Coincident", 24, 2, 25, 1))
sketch2.addConstraint(Sketcher.Constraint("Coincident", 25, 2, 26, 1))
sketch2.addConstraint(Sketcher.Constraint("Coincident", 26, 2, 27, 1))
sketch2.addConstraint(Sketcher.Constraint("Coincident", 27, 2, 23, 1))
sketch2.addConstraint(Sketcher.Constraint("Vertical", 0))
sketch2.addConstraint(Sketcher.Constraint("Horizontal", 1))
sketch2.addConstraint(Sketcher.Constraint("Vertical", 2))
sketch2.addConstraint(Sketcher.Constraint("Horizontal", 3))
sketch2.addConstraint(Sketcher.Constraint("Vertical", 7))
sketch2.addConstraint(Sketcher.Constraint("Horizontal", 8))
sketch2.addConstraint(Sketcher.Constraint("Vertical", 9))
sketch2.addConstraint(Sketcher.Constraint("Horizontal", 13))
sketch2.addConstraint(Sketcher.Constraint("Vertical", 14))
sketch2.addConstraint(Sketcher.Constraint("Horizontal", 18))
sketch2.addConstraint(Sketcher.Constraint("Vertical", 19))
sketch2.addConstraint(Sketcher.Constraint("Horizontal", 20))
sketch2.addConstraint(Sketcher.Constraint("Vertical", 21))
sketch2.addConstraint(Sketcher.Constraint("Horizontal", 22))
sketch2.addConstraint(Sketcher.Constraint("Vertical", 24))
sketch2.addConstraint(Sketcher.Constraint("Horizontal", 25))
sketch2.addConstraint(Sketcher.Constraint("Symmetric", 9, 2, 14, 2, -1, 1))
sketch2.addConstraint(Sketcher.Constraint("Symmetric", 10, 2, 15, 2, -1, 1))
sketch2.addConstraint(Sketcher.Constraint("Symmetric", 11, 2, 16, 2, -1, 1))
sketch2.addConstraint(Sketcher.Constraint("Symmetric", 12, 2, 17, 2, -1, 1))
sketch2.addConstraint(Sketcher.Constraint("Symmetric", 2, 2, 19, 2, -1, 1))
sketch2.addConstraint(Sketcher.Constraint("Symmetric", 0, 2, 21, 2, -1, 1))
sketch2.addConstraint(Sketcher.Constraint("Symmetric", 6, 2, 23, 2, -1, 1))
sketch2.addConstraint(Sketcher.Constraint("Symmetric", 8, 2, 25, 2, -1, 1))
sketch2.addConstraint(Sketcher.Constraint("Symmetric", 4, 2, 26, 2, -1, 1))
sketch2.addConstraint(Sketcher.Constraint("Symmetric", 5, 2, 27, 2, -1, 1))
sketch2.addConstraint(Sketcher.Constraint("Symmetric", 6, 2, 14, 2, -2))
sketch2.addConstraint(Sketcher.Constraint("Symmetric", 5, 2, 15, 2, -2))
sketch2.addConstraint(Sketcher.Constraint("Symmetric", 4, 2, 16, 2, -2))
sketch2.addConstraint(Sketcher.Constraint("Symmetric", 8, 2, 17, 2, -2))
sketch2.addConstraint(Sketcher.Constraint("Perpendicular", 4, 5))
sketch2.addConstraint(Sketcher.Constraint("Perpendicular", 5, 6))
sketch2.addConstraint(Sketcher.Constraint("Perpendicular", 6, 10))
sketch2.addConstraint(Sketcher.Constraint("Horizontal", 1, 2, 19, 2))
sketch2.addConstraint(Sketcher.Constraint("Vertical", 2, 2, 6, 2))
sketch2.addConstraint(Sketcher.Constraint("Equal", 25, 7))
sketch2.addConstraint(Sketcher.Constraint("DistanceX", 1, 1, 1, 2, 14.0))
sketch2.addConstraint(Sketcher.Constraint("DistanceY", 0, 1, 0, 2, 20.0))
sketch2.addConstraint(Sketcher.Constraint("Distance", 4, 18.0))
sketch2.addConstraint(Sketcher.Constraint("Distance", 5, 20.0))
sketch2.addConstraint(Sketcher.Constraint("DistanceX", -1, 1, 0, 2, 56.0))
sketch2.addConstraint(Sketcher.Constraint("DistanceY", 7, 2, -1, 1, 95.0))
pocket1 = body.newObject("PartDesign::Pocket", "Pocket")
pocket1.Profile = sketch2
pocket1.Length = 2
pocket1.Reversed = True
doc.recompute()

fillet = body.newObject("PartDesign::Fillet", "Fillet")
fillet.Base = (pocket1, edges_at(pocket1, [
    (55.858, 1, -95),
    (70, 1, -80.858),
    (70, 1, 80.858),
    (55.858, 1, 95),
    (-70, 1, -80.858),
    (-55.858, 1, -95),
    (-70, 1, 10),
    (-70, 1, -10),
    (-55.858, 1, 95),
    (-70, 1, 80.858),
    (70, 1, -10),
    (70, 1, 10),
]))
fillet.Radius = 1.5

# Sketch on XZ plane
sketch3 = body.newObject("Sketcher::SketchObject", "Sketch002")
sketch3.AttachmentSupport = (doc.getObject("XZ_Plane"), [""])
sketch3.MapMode = "FlatFace"
sketch3.AttachmentOffset = App.Placement(Vector(0, 0, -2), App.Rotation())
sketch3.addGeometry(Part.Circle(Vector(-39, -67.5, 0), Vector(0, 0, 1), 1.3), False)
sketch3.addGeometry(Part.Circle(Vector(19, -67.5, 0), Vector(0, 0, 1), 1.3), False)
sketch3.addGeometry(Part.Circle(Vector(19, -18.5, 0), Vector(0, 0, 1), 1.3), False)
sketch3.addGeometry(Part.Circle(Vector(-39, -18.5, 0), Vector(0, 0, 1), 1.3), False)
sketch3.addConstraint(Sketcher.Constraint("Equal", 0, 1))
sketch3.addConstraint(Sketcher.Constraint("Equal", 1, 2))
sketch3.addConstraint(Sketcher.Constraint("Equal", 2, 3))
sketch3.addConstraint(Sketcher.Constraint("Horizontal", 0, 3, 1, 3))
sketch3.addConstraint(Sketcher.Constraint("Horizontal", 2, 3, 3, 3))
sketch3.addConstraint(Sketcher.Constraint("Vertical", 1, 3, 2, 3))
sketch3.addConstraint(Sketcher.Constraint("Vertical", 0, 3, 3, 3))
sketch3.addConstraint(Sketcher.Constraint("Diameter", 0, 2.6))
sketch3.addConstraint(Sketcher.Constraint("DistanceX", 0, 3, -1, 1, 39.0))
sketch3.addConstraint(Sketcher.Constraint("DistanceX", -1, 1, 1, 3, 19.0))
sketch3.addConstraint(Sketcher.Constraint("DistanceY", 1, 3, 2, 3, 49.0))
sketch3.addConstraint(Sketcher.Constraint("DistanceY", 0, 3, -1, 1, 67.5))
pocket2 = body.newObject("PartDesign::Pocket", "Pocket001")
pocket2.Profile = sketch3
pocket2.Length = 2
pocket2.Reversed = True

doc.recompute()
